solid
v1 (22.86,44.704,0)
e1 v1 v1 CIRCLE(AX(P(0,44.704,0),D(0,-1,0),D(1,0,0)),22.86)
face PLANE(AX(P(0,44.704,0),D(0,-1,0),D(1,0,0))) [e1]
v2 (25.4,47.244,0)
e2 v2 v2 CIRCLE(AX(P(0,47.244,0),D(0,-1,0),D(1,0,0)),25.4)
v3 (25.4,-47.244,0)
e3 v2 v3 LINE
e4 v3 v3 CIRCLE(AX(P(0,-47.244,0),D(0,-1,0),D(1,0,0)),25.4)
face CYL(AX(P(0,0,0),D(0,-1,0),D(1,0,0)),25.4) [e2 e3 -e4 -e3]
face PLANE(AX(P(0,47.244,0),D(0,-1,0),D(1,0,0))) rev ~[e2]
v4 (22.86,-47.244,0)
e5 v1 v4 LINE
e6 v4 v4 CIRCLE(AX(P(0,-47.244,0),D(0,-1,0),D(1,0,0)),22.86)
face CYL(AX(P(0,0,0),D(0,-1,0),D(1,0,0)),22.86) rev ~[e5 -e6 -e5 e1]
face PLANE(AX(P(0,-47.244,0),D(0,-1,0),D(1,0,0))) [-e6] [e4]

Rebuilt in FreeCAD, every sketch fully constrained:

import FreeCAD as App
import Part
import Sketcher

V = App.Vector
Q = App.Units.Quantity


def faces_at(feature, points):
    """Names of the faces that lie closest to the given points."""
    faces = feature.Shape.Faces
    near = lambda p: min(range(len(faces)), key=lambda i: faces[i].distToShape(Part.Vertex(*p))[0])
    return sorted({f"Face{near(p) + 1}" for p in points})

doc = App.newDocument("Part")
params = doc.addObject("Spreadsheet::Sheet", "Params")
for row, (alias, value) in enumerate([
    ("sketch1_diameter", "2 in"),
    ("pad1_length", "3.72 in"),
    ("thickness_wall", "0.1 in"),
], start=1):
    params.set(f"A{row}", alias)
    params.set(f"B{row}", "=" + value)
    params.setAlias(f"B{row}", alias)

body = doc.addObject("PartDesign::Body", "Body")

# Sketch on XZ plane
sketch1 = body.newObject("Sketcher::SketchObject", "Sketch")
sketch1.AttachmentSupport = (doc.getObject("XZ_Plane"), [""])
sketch1.MapMode = "FlatFace"
sketch1.addGeometry(Part.Circle(V(0, 0, 0), V(0, 0, 1), 25.4), False)
sketch1.addConstraint([
    Sketcher.Constraint("Coincident", 0, 3, -1, 1),
    Sketcher.Constraint("Diameter", 0, Q("2 in")),
])
sketch1.setExpression("Constraints[1]", "Params.sketch1_diameter")
pad1 = body.newObject("PartDesign::Pad", "Pad")
pad1.Profile = sketch1
pad1.setExpression("Length", "Params.pad1_length")
pad1.Midplane = True
doc.recompute()

thickness = body.newObject("PartDesign::Thickness", "Thickness")
thickness.Base = (pad1, faces_at(pad1, [(0, -47.244, 0)]))
thickness.setExpression("Value", "Params.thickness_wall")
thickness.Reversed = True
thickness.Join = "Arc"

doc.recompute()
